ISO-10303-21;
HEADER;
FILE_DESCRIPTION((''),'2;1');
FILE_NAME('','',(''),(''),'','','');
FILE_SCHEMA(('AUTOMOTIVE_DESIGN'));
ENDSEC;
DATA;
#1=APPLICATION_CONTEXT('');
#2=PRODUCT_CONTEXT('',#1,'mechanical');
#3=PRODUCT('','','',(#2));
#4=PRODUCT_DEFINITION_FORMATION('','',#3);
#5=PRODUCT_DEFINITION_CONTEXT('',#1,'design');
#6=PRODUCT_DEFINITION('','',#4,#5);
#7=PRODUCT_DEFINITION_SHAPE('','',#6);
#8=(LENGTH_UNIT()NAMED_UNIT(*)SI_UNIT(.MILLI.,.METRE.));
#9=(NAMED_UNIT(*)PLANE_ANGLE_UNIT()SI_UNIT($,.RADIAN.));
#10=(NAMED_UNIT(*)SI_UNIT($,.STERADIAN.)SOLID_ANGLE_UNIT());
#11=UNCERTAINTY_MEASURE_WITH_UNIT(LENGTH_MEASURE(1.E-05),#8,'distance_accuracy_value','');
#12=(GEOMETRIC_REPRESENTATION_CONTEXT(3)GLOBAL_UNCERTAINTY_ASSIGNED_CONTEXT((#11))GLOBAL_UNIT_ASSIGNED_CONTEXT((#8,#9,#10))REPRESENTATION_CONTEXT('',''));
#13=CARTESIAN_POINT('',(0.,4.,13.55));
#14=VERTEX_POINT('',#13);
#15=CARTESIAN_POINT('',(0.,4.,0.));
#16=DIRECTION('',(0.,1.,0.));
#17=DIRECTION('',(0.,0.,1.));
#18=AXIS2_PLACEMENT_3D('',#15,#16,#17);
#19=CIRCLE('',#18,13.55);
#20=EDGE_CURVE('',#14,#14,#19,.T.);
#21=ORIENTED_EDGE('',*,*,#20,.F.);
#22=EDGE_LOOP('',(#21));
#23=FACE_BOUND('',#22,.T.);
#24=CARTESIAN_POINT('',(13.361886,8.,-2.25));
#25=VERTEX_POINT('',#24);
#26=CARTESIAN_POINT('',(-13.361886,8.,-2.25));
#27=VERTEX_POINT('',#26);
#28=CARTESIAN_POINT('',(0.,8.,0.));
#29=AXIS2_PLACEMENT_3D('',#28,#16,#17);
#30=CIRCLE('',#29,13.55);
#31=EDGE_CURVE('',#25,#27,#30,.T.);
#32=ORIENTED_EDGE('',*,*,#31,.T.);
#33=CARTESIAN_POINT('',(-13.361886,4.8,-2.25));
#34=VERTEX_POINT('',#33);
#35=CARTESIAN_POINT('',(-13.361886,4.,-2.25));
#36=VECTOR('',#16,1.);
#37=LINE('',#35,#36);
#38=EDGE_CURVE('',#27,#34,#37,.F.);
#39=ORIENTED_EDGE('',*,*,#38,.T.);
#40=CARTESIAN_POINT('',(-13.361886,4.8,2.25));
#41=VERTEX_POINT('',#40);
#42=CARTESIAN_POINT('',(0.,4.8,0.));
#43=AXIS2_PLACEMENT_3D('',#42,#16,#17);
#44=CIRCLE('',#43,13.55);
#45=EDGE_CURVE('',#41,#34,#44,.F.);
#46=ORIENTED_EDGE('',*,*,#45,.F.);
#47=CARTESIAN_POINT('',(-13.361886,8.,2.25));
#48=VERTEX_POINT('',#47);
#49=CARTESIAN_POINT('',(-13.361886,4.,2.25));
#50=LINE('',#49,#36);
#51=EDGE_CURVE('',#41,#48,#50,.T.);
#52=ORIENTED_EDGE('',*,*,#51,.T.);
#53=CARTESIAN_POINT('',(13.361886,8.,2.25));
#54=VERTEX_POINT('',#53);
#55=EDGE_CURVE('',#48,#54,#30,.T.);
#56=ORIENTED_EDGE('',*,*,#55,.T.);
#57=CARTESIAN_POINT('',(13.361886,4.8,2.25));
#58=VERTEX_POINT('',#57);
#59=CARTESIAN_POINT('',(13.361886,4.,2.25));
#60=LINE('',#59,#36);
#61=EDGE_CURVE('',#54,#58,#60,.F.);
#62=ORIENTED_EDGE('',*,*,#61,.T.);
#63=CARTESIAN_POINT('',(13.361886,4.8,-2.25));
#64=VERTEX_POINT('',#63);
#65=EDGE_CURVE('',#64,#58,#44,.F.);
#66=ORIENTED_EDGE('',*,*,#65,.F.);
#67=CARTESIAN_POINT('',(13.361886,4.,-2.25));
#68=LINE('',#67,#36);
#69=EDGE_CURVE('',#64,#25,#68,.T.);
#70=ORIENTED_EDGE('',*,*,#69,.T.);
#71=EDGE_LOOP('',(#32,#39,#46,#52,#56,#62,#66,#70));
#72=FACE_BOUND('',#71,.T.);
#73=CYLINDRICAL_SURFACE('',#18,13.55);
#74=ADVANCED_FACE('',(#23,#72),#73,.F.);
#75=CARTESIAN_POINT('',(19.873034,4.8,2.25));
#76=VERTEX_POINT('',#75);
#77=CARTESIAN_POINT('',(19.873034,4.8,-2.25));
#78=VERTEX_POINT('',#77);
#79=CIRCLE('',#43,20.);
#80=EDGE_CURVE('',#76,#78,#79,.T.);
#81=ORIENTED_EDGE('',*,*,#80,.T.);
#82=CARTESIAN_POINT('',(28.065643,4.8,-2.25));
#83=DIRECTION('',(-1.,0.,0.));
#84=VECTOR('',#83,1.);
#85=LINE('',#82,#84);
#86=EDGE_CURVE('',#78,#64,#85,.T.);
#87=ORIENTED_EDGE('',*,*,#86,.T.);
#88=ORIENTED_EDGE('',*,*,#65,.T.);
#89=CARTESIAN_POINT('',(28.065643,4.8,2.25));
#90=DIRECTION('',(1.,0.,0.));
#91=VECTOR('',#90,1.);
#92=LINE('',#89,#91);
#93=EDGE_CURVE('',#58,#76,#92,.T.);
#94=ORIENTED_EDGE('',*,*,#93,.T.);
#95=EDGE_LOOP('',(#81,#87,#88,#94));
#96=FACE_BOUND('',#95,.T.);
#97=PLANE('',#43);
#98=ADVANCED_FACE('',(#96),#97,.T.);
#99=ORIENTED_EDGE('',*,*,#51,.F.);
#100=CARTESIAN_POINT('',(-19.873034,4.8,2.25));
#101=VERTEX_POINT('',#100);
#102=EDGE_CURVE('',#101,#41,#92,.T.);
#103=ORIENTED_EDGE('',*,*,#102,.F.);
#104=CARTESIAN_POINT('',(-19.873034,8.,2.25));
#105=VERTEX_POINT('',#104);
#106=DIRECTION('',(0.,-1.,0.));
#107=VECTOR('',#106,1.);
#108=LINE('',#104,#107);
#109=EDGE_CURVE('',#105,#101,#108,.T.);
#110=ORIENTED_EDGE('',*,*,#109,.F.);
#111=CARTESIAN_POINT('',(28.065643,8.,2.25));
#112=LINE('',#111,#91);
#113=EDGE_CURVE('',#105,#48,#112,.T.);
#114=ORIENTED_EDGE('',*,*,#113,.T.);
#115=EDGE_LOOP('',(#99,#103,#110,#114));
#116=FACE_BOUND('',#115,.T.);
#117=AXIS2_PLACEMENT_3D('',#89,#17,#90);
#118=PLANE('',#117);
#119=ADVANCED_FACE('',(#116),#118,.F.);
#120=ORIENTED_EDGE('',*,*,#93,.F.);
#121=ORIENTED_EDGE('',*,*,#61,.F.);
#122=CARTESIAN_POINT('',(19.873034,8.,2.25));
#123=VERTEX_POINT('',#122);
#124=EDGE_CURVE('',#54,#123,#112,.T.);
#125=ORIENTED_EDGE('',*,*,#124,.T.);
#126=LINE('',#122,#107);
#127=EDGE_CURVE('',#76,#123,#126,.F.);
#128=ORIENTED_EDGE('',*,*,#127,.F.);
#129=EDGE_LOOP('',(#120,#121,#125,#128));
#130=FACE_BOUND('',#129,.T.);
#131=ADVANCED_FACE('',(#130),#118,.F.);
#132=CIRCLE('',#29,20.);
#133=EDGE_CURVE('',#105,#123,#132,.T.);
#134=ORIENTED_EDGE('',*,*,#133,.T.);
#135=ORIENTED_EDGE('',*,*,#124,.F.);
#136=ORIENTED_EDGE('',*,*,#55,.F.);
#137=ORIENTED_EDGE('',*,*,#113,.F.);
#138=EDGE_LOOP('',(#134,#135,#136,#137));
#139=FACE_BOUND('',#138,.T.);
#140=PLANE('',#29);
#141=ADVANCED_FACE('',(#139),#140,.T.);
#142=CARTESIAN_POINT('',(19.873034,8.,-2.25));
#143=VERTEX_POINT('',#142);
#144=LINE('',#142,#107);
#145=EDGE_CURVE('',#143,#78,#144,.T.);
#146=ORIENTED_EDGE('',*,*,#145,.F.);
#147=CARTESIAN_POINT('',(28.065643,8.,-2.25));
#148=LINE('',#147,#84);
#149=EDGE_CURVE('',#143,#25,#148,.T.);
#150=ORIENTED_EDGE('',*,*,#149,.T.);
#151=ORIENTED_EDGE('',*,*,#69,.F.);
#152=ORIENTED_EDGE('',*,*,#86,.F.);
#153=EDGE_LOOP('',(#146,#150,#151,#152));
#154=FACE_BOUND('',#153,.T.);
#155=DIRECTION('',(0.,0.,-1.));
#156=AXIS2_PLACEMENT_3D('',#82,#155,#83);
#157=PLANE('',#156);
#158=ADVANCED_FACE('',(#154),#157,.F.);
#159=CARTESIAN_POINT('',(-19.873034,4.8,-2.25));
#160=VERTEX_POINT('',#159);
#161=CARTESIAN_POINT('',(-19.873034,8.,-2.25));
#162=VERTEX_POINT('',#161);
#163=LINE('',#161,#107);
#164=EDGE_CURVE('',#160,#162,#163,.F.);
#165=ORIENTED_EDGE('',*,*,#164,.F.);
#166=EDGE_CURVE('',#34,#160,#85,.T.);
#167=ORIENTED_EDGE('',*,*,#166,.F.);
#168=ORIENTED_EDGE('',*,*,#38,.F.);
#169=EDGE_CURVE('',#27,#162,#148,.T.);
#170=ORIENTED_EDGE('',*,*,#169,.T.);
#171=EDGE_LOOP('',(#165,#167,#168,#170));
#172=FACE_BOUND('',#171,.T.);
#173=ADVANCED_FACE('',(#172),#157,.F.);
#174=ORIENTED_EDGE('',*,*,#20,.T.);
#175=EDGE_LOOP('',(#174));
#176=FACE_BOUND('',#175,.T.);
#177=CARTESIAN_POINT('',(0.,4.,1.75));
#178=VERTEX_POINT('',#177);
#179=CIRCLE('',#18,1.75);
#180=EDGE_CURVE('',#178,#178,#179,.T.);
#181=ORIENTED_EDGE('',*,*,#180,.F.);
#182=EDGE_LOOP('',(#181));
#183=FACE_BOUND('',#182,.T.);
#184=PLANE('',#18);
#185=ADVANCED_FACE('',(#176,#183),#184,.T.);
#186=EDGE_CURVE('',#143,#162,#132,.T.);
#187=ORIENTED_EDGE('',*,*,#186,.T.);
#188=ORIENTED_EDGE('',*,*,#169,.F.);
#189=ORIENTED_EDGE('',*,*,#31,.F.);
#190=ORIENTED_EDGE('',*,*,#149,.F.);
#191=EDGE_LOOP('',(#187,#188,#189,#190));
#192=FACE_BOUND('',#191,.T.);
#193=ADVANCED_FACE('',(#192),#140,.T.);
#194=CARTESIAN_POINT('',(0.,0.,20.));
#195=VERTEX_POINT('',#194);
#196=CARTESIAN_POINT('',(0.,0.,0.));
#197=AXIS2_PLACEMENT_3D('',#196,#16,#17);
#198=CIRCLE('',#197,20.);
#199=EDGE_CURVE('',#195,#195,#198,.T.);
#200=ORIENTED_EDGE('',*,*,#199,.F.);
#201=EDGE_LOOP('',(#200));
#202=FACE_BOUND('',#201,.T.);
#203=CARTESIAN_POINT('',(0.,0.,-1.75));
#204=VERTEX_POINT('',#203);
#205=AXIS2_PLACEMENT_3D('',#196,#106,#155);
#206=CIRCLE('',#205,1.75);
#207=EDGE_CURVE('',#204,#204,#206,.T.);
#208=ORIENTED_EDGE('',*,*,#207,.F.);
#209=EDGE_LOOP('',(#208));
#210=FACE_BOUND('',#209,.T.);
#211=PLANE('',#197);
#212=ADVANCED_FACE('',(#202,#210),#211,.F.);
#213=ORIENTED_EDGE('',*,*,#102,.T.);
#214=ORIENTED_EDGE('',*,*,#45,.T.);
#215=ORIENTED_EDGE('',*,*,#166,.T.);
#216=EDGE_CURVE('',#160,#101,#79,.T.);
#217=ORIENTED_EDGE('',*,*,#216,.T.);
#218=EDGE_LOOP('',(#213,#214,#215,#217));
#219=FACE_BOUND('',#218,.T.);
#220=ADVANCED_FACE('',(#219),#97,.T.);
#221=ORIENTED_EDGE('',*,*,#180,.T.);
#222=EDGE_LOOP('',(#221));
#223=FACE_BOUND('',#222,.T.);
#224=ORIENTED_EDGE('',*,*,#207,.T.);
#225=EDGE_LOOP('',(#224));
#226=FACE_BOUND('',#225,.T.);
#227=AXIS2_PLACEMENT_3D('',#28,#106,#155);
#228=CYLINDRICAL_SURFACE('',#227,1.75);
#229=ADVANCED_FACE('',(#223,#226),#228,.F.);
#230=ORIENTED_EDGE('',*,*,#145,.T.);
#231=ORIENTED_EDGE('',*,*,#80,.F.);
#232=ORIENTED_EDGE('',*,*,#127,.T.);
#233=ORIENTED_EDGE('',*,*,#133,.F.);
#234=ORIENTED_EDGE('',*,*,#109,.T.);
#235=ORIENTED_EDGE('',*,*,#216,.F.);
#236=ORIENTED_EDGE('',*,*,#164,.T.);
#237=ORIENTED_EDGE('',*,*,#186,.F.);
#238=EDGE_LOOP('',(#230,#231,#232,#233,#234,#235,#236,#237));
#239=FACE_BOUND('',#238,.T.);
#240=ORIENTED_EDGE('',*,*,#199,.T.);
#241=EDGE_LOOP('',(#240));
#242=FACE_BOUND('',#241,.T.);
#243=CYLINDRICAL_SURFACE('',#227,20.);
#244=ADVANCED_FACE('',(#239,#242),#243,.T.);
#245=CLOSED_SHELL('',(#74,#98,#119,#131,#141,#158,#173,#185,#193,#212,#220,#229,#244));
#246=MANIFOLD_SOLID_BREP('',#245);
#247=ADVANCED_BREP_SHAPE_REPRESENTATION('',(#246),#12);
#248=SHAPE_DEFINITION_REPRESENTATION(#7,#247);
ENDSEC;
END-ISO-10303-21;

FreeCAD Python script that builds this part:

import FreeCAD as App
import Part
import Sketcher


def add_polygon(sketch, points):
    """Adds a closed chain of lines whose ends are joined by coincident constraints."""
    first, n = sketch.GeometryCount, len(points)
    for a, b in zip(points, points[1:] + points[:1]):
        sketch.addGeometry(Part.LineSegment(App.Vector(*a, 0), App.Vector(*b, 0)), False)
    for i in range(n):
        sketch.addConstraint(Sketcher.Constraint("Coincident", first + i, 2, first + (i + 1) % n, 1))

doc = App.newDocument("Part")
body = doc.addObject("PartDesign::Body", "Body")

# Sketch on XZ plane
sketch1 = body.newObject("Sketcher::SketchObject", "Sketch")
sketch1.AttachmentSupport = (doc.getObject("XZ_Plane"), [""])
sketch1.MapMode = "FlatFace"
sketch1.addGeometry(Part.Circle(App.Vector(0, 0, 0), App.Vector(0, 0, 1), 20), False)
sketch1.addConstraint([
    Sketcher.Constraint("Coincident", 0, 3, -1, 1),
    Sketcher.Constraint("Diameter", 0, 40.0),
])
pad1 = body.newObject("PartDesign::Pad", "Pad")
pad1.Profile = sketch1
pad1.Length = 8
pad1.Reversed = True

# Sketch on XZ plane
sketch2 = body.newObject("Sketcher::SketchObject", "Sketch001")
sketch2.AttachmentSupport = (doc.getObject("XZ_Plane"), [""])
sketch2.MapMode = "FlatFace"
sketch2.AttachmentOffset = App.Placement(App.Vector(0, 0, -8), App.Rotation())
sketch2.addGeometry(Part.Circle(App.Vector(0, 0, 0), App.Vector(0, 0, 1), 14), False)
sketch2.addConstraint([
    Sketcher.Constraint("Coincident", 0, 3, -1, 1),
    Sketcher.Constraint("Diameter", 0, 27.1),
])
pocket1 = body.newObject("PartDesign::Pocket", "Pocket")
pocket1.Profile = sketch2
pocket1.Length = 4
pocket1.Reversed = True

# Sketch on XZ plane
sketch3 = body.newObject("Sketcher::SketchObject", "Sketch002")
sketch3.AttachmentSupport = (doc.getObject("XZ_Plane"), [""])
sketch3.MapMode = "FlatFace"
sketch3.AttachmentOffset = App.Placement(App.Vector(0, 0, -8), App.Rotation())
add_polygon(sketch3, [(-28.1, -2.2), (-28.1, 2.2), (28.1, 2.2), (28.1, -2.2)])  # lines 0-3
sketch3.addConstraint([
    Sketcher.Constraint("Vertical", 0),
    Sketcher.Constraint("Horizontal", 1),
    Sketcher.Constraint("Vertical", 2),
    Sketcher.Constraint("Horizontal", 3),
    Sketcher.Constraint("Symmetric", 0, 2, 2, 2, -1, 1),
    Sketcher.Constraint("DistanceY", 0, 1, 0, 2, 4.5),
    Sketcher.Constraint("DistanceX", 1, 1, 1, 2, 56.131286),
])
pocket2 = body.newObject("PartDesign::Pocket", "Pocket001")
pocket2.Profile = sketch3
pocket2.Length = 3.2
pocket2.Reversed = True

# Sketch on XZ plane
sketch4 = body.newObject("Sketcher::SketchObject", "Sketch003")
sketch4.AttachmentSupport = (doc.getObject("XZ_Plane"), [""])
sketch4.MapMode = "FlatFace"
sketch4.addGeometry(Part.Circle(App.Vector(0, 0, 0), App.Vector(0, 0, 1), 1.8), False)
sketch4.addConstraint([
    Sketcher.Constraint("Coincident", 0, 3, -1, 1),
    Sketcher.Constraint("Diameter", 0, 3.5),
])
pocket3 = body.newObject("PartDesign::Pocket", "Pocket002")
pocket3.Profile = sketch4
pocket3.Type = "ThroughAll"

doc.recompute()
